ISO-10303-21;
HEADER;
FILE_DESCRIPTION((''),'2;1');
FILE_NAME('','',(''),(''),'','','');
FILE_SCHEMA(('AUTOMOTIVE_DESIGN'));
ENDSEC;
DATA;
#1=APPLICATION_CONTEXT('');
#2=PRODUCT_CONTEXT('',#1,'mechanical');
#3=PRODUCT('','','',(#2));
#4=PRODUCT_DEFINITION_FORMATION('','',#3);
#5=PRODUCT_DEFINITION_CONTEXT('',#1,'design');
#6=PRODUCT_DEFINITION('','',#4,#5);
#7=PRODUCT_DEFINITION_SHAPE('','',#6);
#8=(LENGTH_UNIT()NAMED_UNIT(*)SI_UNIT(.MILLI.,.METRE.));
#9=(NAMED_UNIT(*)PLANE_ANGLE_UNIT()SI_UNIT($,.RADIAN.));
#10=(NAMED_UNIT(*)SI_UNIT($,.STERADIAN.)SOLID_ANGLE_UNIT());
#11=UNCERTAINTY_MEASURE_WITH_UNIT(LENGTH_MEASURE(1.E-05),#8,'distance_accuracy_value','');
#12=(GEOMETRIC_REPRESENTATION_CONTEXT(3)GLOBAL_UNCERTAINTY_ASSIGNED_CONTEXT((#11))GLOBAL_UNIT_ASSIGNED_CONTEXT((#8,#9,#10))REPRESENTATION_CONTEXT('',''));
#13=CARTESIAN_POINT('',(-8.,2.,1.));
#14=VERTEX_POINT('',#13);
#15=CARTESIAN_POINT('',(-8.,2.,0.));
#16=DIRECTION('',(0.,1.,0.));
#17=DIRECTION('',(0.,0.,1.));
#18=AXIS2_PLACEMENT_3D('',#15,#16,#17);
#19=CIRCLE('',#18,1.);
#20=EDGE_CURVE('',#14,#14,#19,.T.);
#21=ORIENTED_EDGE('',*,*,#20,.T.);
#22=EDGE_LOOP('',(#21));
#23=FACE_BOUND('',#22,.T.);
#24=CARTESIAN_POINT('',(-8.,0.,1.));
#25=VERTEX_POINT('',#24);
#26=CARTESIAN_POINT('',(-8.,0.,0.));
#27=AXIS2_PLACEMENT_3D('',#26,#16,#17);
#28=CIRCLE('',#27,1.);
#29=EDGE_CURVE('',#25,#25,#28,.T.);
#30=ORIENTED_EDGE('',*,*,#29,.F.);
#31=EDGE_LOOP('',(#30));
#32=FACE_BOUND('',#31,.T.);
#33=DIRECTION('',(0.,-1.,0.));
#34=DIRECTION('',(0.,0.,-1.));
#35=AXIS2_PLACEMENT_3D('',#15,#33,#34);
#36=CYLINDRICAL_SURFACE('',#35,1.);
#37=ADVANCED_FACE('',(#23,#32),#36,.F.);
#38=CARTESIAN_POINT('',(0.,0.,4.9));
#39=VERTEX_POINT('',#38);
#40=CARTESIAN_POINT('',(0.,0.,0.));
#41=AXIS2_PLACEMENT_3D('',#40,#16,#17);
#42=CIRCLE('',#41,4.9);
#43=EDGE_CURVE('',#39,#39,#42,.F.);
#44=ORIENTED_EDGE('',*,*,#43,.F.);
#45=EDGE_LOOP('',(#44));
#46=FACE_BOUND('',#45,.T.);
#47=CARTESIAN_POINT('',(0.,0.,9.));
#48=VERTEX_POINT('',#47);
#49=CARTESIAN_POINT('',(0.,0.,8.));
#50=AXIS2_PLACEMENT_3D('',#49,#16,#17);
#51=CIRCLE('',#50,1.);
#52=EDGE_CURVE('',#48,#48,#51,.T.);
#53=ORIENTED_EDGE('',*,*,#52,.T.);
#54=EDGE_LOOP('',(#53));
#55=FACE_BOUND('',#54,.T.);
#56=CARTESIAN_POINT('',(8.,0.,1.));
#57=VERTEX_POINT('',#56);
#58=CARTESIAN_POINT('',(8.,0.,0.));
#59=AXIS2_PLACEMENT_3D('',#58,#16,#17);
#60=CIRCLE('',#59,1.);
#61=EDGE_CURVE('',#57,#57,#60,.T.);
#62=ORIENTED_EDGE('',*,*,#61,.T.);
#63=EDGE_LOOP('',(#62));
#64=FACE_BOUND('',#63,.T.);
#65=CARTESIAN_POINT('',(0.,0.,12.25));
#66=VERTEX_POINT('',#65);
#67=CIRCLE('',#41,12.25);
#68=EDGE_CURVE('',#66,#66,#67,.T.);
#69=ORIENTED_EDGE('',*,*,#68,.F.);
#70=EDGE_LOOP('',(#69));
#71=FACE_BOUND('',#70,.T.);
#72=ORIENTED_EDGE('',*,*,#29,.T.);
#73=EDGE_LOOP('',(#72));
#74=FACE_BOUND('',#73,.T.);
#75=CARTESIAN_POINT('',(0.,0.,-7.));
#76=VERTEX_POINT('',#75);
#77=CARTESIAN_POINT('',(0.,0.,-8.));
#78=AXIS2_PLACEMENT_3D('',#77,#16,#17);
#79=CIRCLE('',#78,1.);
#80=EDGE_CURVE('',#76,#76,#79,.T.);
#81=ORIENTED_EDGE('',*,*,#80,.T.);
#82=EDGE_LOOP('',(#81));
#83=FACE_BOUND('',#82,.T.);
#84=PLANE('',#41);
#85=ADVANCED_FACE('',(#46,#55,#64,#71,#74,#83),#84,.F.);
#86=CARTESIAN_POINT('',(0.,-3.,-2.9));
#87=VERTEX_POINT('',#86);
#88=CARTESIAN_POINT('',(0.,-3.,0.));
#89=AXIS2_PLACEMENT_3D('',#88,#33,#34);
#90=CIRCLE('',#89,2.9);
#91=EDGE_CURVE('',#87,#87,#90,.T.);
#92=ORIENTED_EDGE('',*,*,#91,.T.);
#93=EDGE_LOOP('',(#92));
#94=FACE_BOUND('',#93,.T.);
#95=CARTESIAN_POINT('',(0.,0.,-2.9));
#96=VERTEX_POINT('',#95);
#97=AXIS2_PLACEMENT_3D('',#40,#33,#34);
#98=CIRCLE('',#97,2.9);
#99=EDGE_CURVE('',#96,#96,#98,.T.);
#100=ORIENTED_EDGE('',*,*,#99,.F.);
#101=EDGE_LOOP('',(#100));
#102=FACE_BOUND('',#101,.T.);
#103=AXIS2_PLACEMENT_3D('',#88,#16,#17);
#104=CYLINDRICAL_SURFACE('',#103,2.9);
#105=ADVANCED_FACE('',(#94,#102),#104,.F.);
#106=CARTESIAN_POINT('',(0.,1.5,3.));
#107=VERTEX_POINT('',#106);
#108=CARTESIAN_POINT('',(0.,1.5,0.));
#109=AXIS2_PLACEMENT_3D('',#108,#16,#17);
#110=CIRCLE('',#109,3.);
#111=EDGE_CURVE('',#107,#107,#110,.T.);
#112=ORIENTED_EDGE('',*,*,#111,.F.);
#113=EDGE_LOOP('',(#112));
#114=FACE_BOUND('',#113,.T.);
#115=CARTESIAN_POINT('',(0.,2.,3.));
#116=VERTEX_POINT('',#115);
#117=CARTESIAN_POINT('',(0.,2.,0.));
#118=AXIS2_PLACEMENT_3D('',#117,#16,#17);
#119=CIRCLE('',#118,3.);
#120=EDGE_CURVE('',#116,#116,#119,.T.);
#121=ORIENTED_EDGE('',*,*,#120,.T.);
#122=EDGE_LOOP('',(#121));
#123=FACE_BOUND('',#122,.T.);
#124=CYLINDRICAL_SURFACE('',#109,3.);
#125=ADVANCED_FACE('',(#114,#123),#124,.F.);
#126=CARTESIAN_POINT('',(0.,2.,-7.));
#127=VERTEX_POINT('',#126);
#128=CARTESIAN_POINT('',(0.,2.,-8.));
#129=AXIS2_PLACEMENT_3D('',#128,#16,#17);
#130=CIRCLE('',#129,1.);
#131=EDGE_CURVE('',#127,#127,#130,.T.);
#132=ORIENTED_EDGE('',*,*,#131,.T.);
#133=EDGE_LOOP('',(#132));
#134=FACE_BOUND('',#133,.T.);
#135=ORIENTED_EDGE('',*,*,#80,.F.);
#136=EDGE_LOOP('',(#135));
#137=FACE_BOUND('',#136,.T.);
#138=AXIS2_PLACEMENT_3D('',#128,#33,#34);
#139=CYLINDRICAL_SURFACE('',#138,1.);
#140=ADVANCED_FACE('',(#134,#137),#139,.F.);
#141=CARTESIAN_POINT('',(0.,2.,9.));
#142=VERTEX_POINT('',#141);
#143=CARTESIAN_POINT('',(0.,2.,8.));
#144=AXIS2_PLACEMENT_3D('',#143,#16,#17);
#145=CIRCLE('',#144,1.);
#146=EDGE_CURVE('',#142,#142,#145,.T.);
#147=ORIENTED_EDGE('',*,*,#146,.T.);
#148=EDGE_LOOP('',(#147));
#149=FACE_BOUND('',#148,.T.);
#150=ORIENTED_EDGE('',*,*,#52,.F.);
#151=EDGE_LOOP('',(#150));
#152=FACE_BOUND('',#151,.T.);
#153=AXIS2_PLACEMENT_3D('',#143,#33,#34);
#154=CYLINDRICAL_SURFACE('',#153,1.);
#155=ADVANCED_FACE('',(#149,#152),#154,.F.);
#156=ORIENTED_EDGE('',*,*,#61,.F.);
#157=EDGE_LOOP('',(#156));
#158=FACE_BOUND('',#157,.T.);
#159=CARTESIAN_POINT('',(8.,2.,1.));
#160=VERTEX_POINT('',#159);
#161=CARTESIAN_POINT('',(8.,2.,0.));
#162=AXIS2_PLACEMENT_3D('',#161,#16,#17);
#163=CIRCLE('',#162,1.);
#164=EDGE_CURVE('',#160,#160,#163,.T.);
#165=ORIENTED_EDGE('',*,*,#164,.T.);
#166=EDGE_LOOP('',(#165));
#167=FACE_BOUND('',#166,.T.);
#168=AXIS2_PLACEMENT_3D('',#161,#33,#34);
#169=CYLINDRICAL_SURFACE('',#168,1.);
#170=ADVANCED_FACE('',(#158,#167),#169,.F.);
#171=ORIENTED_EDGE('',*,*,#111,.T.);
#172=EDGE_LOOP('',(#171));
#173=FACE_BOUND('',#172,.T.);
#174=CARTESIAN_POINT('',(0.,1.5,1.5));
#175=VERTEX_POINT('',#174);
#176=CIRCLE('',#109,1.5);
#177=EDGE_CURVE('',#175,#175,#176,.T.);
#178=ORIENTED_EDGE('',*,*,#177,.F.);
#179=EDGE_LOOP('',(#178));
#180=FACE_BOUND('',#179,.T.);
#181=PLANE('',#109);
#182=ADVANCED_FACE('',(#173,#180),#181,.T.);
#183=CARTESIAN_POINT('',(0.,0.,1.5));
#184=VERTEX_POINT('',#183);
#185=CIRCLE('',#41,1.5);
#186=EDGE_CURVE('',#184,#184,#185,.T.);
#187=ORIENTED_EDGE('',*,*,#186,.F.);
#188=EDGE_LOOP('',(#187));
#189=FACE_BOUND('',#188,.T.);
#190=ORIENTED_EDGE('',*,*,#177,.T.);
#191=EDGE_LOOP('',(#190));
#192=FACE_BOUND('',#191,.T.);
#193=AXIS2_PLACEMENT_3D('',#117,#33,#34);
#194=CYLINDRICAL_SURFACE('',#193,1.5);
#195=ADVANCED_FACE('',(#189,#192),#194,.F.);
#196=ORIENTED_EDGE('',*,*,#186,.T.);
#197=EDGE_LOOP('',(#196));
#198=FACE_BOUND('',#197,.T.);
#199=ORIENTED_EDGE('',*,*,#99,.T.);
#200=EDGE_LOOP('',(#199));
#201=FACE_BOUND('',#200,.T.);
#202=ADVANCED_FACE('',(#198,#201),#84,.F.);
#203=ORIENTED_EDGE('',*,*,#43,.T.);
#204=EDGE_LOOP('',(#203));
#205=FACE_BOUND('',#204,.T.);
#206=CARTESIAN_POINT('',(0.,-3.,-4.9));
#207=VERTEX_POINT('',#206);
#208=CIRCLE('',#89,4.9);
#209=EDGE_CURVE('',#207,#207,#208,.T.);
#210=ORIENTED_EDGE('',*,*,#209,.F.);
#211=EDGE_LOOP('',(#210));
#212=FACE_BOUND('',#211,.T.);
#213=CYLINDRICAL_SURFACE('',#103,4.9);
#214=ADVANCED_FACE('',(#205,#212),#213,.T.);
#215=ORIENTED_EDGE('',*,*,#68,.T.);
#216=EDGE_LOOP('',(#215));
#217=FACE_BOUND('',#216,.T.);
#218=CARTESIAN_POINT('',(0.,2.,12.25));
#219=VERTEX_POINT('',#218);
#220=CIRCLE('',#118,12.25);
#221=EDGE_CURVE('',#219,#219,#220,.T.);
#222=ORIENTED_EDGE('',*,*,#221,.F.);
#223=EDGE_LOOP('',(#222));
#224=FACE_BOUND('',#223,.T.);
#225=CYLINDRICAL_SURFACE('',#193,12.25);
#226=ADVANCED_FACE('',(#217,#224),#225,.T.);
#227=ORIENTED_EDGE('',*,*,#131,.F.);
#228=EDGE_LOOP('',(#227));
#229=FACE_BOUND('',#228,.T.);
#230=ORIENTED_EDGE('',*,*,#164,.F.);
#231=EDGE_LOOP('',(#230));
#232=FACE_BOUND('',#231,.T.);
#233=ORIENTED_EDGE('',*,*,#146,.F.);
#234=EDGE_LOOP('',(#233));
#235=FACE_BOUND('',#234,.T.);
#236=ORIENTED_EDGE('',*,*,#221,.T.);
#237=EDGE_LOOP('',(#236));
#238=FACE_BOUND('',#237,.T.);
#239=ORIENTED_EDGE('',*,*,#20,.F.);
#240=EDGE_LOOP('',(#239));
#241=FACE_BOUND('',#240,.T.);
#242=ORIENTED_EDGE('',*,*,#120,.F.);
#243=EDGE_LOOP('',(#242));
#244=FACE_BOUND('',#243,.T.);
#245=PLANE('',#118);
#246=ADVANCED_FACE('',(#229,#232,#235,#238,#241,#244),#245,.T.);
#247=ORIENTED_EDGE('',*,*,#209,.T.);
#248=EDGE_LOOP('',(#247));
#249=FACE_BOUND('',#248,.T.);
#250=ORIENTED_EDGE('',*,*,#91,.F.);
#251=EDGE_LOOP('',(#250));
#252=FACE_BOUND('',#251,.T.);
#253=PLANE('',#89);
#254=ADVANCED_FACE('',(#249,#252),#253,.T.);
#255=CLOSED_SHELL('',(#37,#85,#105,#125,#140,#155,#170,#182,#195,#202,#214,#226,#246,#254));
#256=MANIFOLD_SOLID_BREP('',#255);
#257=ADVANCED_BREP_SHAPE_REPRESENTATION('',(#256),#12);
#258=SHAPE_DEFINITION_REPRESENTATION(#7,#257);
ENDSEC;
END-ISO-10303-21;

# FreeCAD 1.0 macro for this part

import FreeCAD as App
import Part
import Sketcher
Q = App.Units.Quantity

doc = App.newDocument("Part")
body = doc.addObject("PartDesign::Body", "Body")

sketch1 = body.newObject("Sketcher::SketchObject", "Sketch")
sketch1.AttachmentSupport = (doc.getObject("XZ_Plane"), [""])
sketch1.MapMode = "FlatFace"
sketch1.addGeometry(Part.Circle(App.Vector(0, 0, 0), App.Vector(0, 0, 1), 12.25), False)
sketch1.addGeometry(Part.Circle(App.Vector(0, -8, 0), App.Vector(0, 0, 1), 1), False)
sketch1.addGeometry(Part.Circle(App.Vector(-8, 0, 0), App.Vector(0, 0, 1), 1), False)
sketch1.addGeometry(Part.Circle(App.Vector(8, 0, 0), App.Vector(0, 0, 1), 1), False)
sketch1.addGeometry(Part.Circle(App.Vector(0, 8, 0), App.Vector(0, 0, 1), 1), False)
sketch1.addGeometry(Part.Circle(App.Vector(0, 0, 0), App.Vector(0, 0, 1), 1.5), False)
sketch1.addConstraint(Sketcher.Constraint("Coincident", 0, 3, -1, 1))
sketch1.addConstraint(Sketcher.Constraint("Coincident", 5, 3, -1, 1))
sketch1.addConstraint(Sketcher.Constraint("Equal", 1, 2))
sketch1.addConstraint(Sketcher.Constraint("Equal", 2, 3))
sketch1.addConstraint(Sketcher.Constraint("Equal", 3, 4))
sketch1.addConstraint(Sketcher.Constraint("Symmetric", 2, 3, 3, 3, -1, 1))
sketch1.addConstraint(Sketcher.Constraint("Symmetric", 1, 3, 4, 3, -1, 1))
sketch1.addConstraint(Sketcher.Constraint("PointOnObject", 1, 3, -2))
sketch1.addConstraint(Sketcher.Constraint("PointOnObject", 2, 3, -1))
sketch1.addConstraint(Sketcher.Constraint("Diameter", 1, Q("2 mm")))
sketch1.addConstraint(Sketcher.Constraint("Diameter", 5, Q("3 mm")))
sketch1.addConstraint(Sketcher.Constraint("Diameter", 0, Q("24.5 mm")))
sketch1.addConstraint(Sketcher.Constraint("DistanceY", 1, 3, -1, 1, Q("8 mm")))
sketch1.addConstraint(Sketcher.Constraint("DistanceX", 2, 3, -1, 1, Q("8 mm")))
pad1 = body.newObject("PartDesign::Pad", "Pad")
pad1.Profile = sketch1
pad1.Length = 2
pad1.Reversed = True

sketch2 = body.newObject("Sketcher::SketchObject", "Sketch001")
sketch2.AttachmentSupport = (doc.getObject("XZ_Plane"), [""])
sketch2.MapMode = "FlatFace"
sketch2.addGeometry(Part.Circle(App.Vector(0, 0, 0), App.Vector(0, 0, 1), 4.9), False)
sketch2.addGeometry(Part.Circle(App.Vector(0, 0, 0), App.Vector(0, 0, 1), 2.9), False)
sketch2.addConstraint(Sketcher.Constraint("Coincident", 0, 3, -1, 1))
sketch2.addConstraint(Sketcher.Constraint("Coincident", 1, 3, -1, 1))
sketch2.addConstraint(Sketcher.Constraint("Diameter", 0, Q("9.8 mm")))
sketch2.addConstraint(Sketcher.Constraint("Diameter", 1, Q("5.8 mm")))
pad2 = body.newObject("PartDesign::Pad", "Pad001")
pad2.Profile = sketch2
pad2.Length = 3

sketch3 = body.newObject("Sketcher::SketchObject", "Sketch002")
sketch3.AttachmentSupport = (doc.getObject("XZ_Plane"), [""])
sketch3.MapMode = "FlatFace"
sketch3.AttachmentOffset = App.Placement(App.Vector(0, 0, -2), App.Rotation())
sketch3.addGeometry(Part.Circle(App.Vector(0, 0, 0), App.Vector(0, 0, 1), 3), False)
sketch3.addConstraint(Sketcher.Constraint("Coincident", 0, 3, -1, 1))
sketch3.addConstraint(Sketcher.Constraint("Diameter", 0, Q("6 mm")))
pocket1 = body.newObject("PartDesign::Pocket", "Pocket")
pocket1.Profile = sketch3
pocket1.Length = 0.5
pocket1.Reversed = True

doc.recompute()
